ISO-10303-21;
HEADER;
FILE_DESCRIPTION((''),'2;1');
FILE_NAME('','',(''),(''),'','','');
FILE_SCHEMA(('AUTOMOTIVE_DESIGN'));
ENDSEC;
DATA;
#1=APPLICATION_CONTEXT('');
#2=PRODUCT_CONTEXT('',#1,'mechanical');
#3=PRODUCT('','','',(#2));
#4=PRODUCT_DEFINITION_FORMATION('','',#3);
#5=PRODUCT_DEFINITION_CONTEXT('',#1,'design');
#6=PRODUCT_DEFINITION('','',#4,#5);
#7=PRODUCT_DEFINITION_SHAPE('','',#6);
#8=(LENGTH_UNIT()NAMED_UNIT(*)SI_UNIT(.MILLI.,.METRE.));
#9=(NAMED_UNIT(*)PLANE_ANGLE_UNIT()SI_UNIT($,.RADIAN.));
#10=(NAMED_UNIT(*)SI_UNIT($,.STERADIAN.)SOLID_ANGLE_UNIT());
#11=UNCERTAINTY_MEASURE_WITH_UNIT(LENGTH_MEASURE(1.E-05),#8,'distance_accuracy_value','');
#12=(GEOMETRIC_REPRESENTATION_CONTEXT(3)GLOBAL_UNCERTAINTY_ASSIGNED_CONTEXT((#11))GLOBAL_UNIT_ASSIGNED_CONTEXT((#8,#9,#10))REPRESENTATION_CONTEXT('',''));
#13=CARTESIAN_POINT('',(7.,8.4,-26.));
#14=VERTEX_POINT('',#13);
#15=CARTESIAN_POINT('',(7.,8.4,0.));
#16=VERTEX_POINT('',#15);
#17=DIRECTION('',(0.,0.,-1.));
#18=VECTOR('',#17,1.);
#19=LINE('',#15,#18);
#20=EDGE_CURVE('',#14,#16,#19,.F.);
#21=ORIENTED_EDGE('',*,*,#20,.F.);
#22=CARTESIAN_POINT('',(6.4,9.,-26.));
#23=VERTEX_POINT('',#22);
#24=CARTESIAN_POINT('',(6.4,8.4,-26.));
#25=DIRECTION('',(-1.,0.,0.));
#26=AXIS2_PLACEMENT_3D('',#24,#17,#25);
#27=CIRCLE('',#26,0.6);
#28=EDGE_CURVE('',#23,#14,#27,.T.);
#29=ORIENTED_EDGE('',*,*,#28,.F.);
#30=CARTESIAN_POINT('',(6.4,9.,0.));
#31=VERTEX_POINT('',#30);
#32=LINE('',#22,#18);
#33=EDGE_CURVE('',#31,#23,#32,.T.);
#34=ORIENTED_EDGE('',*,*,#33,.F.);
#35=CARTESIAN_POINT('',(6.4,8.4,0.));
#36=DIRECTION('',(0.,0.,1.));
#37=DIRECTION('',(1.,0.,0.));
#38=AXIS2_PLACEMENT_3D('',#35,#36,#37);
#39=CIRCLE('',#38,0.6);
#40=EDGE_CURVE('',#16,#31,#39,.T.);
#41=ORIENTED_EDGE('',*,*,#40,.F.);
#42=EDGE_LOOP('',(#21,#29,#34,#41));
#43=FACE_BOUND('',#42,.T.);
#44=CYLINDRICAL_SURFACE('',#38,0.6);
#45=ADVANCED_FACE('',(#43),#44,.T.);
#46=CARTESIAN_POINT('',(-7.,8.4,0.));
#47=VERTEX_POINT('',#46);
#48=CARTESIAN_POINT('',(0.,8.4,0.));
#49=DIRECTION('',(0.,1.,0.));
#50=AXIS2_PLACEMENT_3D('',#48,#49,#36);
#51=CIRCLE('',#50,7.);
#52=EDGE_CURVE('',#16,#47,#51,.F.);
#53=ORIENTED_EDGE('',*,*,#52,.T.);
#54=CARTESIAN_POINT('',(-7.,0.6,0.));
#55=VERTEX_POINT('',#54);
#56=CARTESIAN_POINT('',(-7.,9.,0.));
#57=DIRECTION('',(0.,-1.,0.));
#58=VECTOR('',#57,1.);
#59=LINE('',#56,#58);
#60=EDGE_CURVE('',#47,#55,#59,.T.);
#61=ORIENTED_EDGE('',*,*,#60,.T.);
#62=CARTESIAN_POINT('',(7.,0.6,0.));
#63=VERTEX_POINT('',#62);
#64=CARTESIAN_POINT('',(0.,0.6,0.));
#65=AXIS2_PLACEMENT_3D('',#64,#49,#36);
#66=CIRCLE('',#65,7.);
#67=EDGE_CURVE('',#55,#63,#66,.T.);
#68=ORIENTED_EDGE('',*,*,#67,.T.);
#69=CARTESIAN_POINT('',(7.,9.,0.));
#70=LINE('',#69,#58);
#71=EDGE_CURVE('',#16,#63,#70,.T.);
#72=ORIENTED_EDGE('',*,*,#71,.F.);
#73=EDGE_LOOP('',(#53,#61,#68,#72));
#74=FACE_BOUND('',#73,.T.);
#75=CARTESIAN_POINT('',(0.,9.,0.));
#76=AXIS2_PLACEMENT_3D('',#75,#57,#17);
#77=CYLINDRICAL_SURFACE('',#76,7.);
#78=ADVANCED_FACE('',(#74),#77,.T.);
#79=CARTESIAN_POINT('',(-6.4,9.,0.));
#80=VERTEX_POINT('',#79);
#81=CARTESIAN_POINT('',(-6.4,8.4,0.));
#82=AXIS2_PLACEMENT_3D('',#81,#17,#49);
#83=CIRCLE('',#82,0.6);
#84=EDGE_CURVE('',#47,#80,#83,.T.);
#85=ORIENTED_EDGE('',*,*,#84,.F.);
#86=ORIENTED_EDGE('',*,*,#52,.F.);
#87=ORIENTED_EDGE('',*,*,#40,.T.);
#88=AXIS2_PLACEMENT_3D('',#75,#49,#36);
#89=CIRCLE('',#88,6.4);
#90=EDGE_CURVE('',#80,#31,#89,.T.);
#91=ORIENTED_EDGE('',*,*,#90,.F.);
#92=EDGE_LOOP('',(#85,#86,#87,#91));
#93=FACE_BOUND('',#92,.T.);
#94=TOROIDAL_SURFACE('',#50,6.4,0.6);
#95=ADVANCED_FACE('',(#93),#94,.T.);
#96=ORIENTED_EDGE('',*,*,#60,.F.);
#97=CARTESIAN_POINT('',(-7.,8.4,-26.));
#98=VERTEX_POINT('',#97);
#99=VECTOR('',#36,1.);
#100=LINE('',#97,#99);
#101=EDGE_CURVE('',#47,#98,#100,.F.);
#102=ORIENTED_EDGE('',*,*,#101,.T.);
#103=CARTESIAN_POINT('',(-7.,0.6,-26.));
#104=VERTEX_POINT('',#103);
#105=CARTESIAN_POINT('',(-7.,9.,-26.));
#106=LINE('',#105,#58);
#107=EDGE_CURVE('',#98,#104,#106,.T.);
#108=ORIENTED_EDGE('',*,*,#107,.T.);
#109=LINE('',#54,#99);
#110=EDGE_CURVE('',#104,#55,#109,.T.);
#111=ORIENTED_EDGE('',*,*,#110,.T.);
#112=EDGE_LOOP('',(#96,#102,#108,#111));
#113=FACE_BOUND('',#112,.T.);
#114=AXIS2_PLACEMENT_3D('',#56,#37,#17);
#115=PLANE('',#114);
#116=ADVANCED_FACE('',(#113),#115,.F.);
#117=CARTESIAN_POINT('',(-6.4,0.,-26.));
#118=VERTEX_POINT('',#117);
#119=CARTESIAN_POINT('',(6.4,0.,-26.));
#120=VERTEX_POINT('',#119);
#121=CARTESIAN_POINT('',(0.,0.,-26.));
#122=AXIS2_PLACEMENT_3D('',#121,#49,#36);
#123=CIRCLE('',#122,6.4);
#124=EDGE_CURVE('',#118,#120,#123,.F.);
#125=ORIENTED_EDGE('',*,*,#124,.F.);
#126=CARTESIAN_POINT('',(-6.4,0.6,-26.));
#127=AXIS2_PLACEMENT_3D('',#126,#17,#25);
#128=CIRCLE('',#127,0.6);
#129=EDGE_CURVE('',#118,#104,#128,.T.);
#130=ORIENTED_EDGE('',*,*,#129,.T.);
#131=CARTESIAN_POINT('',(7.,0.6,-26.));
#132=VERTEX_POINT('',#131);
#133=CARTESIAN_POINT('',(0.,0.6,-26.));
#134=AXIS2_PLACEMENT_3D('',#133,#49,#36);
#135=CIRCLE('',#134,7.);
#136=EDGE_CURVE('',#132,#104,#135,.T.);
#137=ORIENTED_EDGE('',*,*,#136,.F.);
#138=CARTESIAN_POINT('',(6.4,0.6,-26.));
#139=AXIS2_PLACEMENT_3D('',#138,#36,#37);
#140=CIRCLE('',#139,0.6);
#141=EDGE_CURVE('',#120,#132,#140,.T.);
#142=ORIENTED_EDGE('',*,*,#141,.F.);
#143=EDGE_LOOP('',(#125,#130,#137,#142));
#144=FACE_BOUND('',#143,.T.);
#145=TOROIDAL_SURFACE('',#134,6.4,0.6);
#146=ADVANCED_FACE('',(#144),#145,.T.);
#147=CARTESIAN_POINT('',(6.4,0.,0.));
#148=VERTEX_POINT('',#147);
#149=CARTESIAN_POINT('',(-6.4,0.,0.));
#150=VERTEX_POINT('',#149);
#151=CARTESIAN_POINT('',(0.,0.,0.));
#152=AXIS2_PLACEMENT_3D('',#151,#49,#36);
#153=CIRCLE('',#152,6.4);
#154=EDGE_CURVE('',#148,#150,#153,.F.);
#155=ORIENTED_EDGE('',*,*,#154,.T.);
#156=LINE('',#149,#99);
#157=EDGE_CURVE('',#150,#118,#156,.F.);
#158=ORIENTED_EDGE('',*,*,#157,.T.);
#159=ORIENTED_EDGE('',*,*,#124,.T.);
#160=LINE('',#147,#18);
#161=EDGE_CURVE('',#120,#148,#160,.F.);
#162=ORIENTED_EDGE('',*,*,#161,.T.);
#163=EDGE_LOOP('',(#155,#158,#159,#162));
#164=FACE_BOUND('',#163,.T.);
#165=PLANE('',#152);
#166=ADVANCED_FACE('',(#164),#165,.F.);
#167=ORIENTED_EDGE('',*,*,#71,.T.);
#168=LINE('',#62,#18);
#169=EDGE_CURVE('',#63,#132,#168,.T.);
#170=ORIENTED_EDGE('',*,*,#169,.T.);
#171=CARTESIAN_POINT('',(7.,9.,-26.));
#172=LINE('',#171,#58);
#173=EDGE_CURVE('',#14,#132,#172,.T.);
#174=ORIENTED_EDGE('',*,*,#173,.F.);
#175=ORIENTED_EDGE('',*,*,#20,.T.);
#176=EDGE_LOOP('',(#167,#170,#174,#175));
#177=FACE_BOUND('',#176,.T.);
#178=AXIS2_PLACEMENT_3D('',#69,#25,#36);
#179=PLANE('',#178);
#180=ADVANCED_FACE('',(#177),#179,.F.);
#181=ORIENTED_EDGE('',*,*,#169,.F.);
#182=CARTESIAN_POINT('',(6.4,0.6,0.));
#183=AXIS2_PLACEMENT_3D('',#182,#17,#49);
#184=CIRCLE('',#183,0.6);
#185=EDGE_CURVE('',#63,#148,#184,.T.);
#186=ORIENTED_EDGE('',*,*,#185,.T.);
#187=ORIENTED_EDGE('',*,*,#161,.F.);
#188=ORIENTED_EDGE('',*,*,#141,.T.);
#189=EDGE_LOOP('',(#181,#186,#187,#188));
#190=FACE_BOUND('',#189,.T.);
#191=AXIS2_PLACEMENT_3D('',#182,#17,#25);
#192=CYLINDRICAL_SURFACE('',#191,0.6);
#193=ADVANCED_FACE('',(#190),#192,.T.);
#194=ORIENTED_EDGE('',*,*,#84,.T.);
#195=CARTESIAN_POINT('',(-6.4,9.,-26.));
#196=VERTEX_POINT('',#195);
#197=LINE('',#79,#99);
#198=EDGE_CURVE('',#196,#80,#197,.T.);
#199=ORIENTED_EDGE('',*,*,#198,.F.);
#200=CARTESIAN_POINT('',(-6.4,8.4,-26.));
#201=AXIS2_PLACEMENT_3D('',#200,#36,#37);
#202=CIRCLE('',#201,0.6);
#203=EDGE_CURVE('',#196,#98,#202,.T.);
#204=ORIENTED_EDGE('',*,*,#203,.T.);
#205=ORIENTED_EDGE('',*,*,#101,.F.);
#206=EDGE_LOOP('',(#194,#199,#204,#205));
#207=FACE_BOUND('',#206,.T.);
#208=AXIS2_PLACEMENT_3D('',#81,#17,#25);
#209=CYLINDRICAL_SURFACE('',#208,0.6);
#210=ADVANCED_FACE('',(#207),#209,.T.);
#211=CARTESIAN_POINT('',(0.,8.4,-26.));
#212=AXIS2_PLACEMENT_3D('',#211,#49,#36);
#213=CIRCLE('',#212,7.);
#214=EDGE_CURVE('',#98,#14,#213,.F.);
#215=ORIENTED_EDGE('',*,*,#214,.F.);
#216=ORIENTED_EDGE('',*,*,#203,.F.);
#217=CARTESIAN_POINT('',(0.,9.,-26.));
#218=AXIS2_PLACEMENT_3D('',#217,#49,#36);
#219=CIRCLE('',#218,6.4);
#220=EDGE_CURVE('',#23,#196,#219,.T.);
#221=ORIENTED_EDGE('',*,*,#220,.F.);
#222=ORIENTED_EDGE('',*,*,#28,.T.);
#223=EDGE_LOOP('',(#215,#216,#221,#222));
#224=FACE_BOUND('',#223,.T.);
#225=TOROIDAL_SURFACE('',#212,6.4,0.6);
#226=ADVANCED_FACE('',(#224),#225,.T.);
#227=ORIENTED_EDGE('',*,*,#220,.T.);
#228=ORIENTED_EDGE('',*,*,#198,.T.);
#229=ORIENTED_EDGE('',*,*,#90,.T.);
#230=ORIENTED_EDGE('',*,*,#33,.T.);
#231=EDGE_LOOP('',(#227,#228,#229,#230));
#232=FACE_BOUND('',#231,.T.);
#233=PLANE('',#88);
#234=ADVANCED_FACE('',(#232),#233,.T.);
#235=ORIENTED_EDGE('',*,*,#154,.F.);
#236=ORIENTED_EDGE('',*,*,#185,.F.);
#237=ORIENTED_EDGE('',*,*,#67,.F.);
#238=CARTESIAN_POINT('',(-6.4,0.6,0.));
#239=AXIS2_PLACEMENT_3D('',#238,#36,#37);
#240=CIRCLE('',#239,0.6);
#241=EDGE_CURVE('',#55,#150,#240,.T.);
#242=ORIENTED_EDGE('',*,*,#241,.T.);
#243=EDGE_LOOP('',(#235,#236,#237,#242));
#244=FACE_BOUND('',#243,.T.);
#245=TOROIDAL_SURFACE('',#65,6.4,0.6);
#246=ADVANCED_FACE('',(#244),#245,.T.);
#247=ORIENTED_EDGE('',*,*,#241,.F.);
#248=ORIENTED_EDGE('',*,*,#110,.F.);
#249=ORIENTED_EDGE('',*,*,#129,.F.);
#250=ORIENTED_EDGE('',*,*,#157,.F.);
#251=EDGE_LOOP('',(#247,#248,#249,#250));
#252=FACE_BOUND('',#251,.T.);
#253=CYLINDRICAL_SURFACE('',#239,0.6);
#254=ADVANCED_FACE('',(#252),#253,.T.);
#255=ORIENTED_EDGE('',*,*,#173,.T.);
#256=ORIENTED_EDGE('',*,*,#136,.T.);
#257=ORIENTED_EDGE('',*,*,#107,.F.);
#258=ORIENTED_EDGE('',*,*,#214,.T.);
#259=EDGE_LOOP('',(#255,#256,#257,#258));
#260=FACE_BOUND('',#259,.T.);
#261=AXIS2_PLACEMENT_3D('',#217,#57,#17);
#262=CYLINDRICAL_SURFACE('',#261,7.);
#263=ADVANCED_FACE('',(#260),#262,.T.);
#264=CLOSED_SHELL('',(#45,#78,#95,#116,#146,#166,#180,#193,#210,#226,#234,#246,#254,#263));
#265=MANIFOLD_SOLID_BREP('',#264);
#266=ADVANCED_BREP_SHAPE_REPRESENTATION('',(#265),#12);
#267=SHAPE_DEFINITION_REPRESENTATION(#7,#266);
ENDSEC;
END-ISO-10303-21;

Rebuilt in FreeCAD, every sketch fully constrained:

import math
import FreeCAD as App
import Part
import Sketcher

V = App.Vector
Q = App.Units.Quantity


def edges_at(feature, points):
    """Names of the edges that pass closest to the given points."""
    edges = feature.Shape.Edges
    near = lambda p: min(range(len(edges)), key=lambda i: edges[i].distToShape(Part.Vertex(*p))[0])
    return sorted({f"Edge{near(p) + 1}" for p in points})

doc = App.newDocument("Part")
body = doc.addObject("PartDesign::Body", "Body")

# Sketch on XZ plane
sketch1 = body.newObject("Sketcher::SketchObject", "Sketch")
sketch1.AttachmentSupport = (doc.getObject("XZ_Plane"), [""])
sketch1.MapMode = "FlatFace"
sketch1.addGeometry([
    Part.LineSegment(V(-7, -26, 0), V(-7, 0, 0)),
    Part.ArcOfCircle(Part.Circle(V(0, 0, 0), V(0, 0, 1), 7), math.radians(0), math.radians(180)),
    Part.LineSegment(V(7, 0, 0), V(7, -26, 0)),
    Part.ArcOfCircle(Part.Circle(V(0, -26, 0), V(0, 0, 1), 7), math.radians(180), math.radians(360)),
], False)
sketch1.addConstraint([
    Sketcher.Constraint("Tangent", 0, 2, 1, 2),
    Sketcher.Constraint("Tangent", 1, 1, 2, 1),
    Sketcher.Constraint("Tangent", 2, 2, 3, 2),
    Sketcher.Constraint("Tangent", 3, 1, 0, 1),
    Sketcher.Constraint("Vertical", 0),
    Sketcher.Constraint("Vertical", 2),
    Sketcher.Constraint("Coincident", 1, 3, -1, 1),
    Sketcher.Constraint("Radius", 1, Q("7 mm")),
    Sketcher.Constraint("DistanceY", 0, 1, 0, 2, Q("26 mm")),
])
pad1 = body.newObject("PartDesign::Pad", "Pad")
pad1.Profile = sketch1
pad1.Length = 9
pad1.Reversed = True
doc.recompute()

fillet = body.newObject("PartDesign::Fillet", "Fillet")
fillet.Base = (pad1, edges_at(pad1, [
    (0, 9, -33),
    (-7, 9, -13),
    (0, 9, 7),
    (-7, 0, -13),
    (0, 0, -33),
    (7, 0, -13),
    (0, 0, 7),
    (7, 9, -13),
]))
fillet.Radius = 0.6

doc.recompute()
